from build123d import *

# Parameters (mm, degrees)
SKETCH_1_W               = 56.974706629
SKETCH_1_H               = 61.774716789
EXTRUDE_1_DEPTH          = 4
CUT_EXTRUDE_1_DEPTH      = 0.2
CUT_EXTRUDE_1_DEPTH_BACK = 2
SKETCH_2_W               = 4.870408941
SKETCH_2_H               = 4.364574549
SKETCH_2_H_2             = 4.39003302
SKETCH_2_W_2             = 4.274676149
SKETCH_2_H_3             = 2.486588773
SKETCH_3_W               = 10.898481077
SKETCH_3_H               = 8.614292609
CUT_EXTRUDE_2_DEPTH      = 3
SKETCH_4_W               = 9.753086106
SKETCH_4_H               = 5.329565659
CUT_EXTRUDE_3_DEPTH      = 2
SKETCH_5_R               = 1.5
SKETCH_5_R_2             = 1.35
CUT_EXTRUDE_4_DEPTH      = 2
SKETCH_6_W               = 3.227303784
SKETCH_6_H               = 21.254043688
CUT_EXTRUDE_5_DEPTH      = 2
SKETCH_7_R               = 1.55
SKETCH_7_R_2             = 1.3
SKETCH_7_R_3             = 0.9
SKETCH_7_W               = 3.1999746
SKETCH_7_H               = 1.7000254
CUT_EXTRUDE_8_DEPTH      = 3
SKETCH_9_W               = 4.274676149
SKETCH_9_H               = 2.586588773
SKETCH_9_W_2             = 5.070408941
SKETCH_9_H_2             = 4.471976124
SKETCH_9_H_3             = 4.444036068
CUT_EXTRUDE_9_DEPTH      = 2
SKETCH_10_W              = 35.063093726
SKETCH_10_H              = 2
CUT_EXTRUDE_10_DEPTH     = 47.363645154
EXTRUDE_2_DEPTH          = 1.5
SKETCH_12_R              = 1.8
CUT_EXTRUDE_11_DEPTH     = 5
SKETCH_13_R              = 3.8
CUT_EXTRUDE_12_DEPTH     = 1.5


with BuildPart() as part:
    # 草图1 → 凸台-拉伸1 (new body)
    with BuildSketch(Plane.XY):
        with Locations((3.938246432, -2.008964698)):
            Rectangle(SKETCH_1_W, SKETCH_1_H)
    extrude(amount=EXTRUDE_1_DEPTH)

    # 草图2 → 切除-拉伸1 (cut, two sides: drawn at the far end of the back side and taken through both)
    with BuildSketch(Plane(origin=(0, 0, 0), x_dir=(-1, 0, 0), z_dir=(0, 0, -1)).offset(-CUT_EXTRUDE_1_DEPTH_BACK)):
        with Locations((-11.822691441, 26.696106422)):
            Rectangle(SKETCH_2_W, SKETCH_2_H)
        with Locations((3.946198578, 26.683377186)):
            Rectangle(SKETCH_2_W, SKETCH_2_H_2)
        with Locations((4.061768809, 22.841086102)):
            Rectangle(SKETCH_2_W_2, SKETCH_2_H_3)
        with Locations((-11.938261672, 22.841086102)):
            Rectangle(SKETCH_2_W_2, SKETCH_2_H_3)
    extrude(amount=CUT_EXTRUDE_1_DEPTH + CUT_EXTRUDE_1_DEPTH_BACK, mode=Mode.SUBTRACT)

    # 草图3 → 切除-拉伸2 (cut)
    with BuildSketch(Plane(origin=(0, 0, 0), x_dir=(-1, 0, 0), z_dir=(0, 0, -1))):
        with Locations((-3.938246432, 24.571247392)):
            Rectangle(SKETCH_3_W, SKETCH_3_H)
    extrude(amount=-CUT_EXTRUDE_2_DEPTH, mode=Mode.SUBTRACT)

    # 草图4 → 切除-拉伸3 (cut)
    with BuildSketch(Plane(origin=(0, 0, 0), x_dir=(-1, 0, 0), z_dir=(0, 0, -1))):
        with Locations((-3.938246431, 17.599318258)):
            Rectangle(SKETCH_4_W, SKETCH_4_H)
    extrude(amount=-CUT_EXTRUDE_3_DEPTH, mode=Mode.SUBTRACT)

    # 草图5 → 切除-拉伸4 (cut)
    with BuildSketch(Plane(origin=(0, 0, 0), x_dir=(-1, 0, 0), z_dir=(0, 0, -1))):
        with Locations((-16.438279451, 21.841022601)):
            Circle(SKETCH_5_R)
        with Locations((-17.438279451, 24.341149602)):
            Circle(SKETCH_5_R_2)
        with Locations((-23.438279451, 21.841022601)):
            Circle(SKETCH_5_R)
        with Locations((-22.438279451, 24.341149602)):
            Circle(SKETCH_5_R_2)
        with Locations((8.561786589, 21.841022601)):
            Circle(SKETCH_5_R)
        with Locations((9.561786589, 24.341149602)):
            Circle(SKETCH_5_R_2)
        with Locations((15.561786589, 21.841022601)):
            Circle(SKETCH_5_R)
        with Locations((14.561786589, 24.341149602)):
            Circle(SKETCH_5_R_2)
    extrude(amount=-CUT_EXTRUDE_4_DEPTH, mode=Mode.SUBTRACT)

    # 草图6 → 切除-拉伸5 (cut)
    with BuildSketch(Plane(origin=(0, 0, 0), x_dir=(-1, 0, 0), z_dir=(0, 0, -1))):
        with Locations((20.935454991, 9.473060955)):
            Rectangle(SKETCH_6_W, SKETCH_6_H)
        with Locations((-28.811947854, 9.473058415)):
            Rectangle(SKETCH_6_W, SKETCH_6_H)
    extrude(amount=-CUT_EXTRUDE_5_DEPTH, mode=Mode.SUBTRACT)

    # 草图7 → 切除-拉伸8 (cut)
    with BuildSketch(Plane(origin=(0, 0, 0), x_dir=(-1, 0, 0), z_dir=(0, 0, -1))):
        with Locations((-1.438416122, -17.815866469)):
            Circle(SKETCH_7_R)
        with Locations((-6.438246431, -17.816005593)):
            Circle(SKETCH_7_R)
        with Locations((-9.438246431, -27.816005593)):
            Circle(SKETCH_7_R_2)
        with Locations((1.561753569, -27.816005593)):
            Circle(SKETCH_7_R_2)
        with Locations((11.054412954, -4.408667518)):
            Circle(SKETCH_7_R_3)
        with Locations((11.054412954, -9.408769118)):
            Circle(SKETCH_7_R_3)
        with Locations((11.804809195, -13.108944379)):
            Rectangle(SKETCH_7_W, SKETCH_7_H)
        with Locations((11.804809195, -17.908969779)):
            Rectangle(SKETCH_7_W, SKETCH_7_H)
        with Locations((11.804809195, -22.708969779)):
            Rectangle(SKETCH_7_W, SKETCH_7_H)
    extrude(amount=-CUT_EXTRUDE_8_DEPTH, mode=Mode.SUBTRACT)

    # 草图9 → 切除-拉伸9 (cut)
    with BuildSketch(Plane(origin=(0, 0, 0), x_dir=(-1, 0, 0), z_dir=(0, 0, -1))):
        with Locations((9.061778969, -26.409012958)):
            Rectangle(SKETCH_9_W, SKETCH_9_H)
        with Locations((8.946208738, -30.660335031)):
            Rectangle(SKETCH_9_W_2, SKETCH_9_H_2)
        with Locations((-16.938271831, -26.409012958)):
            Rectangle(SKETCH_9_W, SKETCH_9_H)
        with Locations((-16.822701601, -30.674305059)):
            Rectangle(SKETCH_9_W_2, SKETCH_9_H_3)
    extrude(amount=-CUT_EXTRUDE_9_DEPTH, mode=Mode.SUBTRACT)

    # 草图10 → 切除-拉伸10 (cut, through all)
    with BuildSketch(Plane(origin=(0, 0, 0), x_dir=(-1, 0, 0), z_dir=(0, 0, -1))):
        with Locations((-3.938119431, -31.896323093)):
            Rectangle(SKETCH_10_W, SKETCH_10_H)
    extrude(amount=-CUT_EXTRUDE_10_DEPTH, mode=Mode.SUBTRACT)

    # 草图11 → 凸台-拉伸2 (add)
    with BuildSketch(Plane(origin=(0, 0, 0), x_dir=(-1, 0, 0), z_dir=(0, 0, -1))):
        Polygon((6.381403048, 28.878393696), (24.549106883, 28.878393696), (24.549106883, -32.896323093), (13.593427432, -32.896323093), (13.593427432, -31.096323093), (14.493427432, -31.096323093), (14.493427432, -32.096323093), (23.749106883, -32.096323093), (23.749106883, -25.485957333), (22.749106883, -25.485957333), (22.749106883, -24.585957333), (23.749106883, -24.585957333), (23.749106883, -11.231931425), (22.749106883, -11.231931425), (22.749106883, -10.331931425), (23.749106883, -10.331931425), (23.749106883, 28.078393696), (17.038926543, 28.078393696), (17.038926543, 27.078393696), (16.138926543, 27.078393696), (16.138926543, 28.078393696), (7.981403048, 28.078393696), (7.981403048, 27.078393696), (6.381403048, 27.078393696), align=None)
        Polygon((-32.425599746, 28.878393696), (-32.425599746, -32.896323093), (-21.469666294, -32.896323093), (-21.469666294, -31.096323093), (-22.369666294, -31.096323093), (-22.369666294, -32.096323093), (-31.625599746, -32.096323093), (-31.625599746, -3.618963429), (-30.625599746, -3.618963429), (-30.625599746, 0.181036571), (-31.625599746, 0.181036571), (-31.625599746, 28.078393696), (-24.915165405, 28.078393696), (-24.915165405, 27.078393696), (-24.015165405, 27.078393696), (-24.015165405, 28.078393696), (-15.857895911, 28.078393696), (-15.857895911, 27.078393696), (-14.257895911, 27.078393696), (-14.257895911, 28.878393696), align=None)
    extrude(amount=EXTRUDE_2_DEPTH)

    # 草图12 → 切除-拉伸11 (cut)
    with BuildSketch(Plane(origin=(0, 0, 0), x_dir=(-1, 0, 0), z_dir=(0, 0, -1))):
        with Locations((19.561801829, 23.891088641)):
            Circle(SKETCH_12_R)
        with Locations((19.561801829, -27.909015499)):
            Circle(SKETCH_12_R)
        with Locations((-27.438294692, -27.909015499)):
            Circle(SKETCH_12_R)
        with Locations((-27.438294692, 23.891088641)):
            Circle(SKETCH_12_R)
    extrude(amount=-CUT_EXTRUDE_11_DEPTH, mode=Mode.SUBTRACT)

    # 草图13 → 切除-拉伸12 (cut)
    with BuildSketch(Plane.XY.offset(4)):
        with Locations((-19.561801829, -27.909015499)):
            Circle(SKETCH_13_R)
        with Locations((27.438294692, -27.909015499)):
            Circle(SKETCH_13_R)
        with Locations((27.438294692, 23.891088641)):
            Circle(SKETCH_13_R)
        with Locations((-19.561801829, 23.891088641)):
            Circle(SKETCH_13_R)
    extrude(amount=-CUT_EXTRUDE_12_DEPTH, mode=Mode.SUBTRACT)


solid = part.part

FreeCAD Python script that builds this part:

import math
import FreeCAD as App
import Part
import Sketcher
Q = App.Units.Quantity


def add_polygon(sketch, points):
    """Adds a closed chain of lines whose ends are joined by coincident constraints."""
    first, n = sketch.GeometryCount, len(points)
    for a, b in zip(points, points[1:] + points[:1]):
        sketch.addGeometry(Part.LineSegment(App.Vector(*a, 0), App.Vector(*b, 0)), False)
    for i in range(n):
        sketch.addConstraint(Sketcher.Constraint("Coincident", first + i, 2, first + (i + 1) % n, 1))

doc = App.newDocument("Part")
params = doc.addObject("Spreadsheet::Sheet", "Params")
for row, (alias, value) in enumerate([
    ("pad1_length", "4 mm"),
    ("pocket1_length", "0.2 mm"),
    ("pocket1_length2", "2 mm"),
    ("pocket2_length", "3 mm"),
    ("pocket3_length", "2 mm"),
    ("sketch5_radius", "1.5 mm"),
    ("sketch5_radius2", "1.5 mm"),
    ("sketch5_radius3", "1.5 mm"),
    ("sketch5_radius4", "1.5 mm"),
    ("sketch5_radius5", "1.35 mm"),
    ("pocket4_length", "2 mm"),
    ("pocket5_length", "2 mm"),
    ("sketch7_diameter", "3.1 mm"),
    ("sketch7_diameter2", "2.6 mm"),
    ("sketch7_diameter3", "1.8 mm"),
    ("pocket6_length", "3 mm"),
    ("pocket7_length", "2 mm"),
    ("sketch9_height", "2 mm"),
    ("sketch10_width", "1 mm"),
    ("sketch10_width2", "1.6 mm"),
    ("sketch10_width3", "0.9 mm"),
    ("sketch10_height", "1.8 mm"),
    ("sketch10_height2", "3.8 mm"),
    ("pad2_length", "1.5 mm"),
    ("sketch11_diameter", "3.6 mm"),
    ("pocket9_length", "5 mm"),
    ("sketch12_diameter", "7.6 mm"),
    ("pocket10_length", "1.5 mm"),
], start=1):
    params.set(f"A{row}", alias)
    params.set(f"B{row}", "=" + value)
    params.setAlias(f"B{row}", alias)

body = doc.addObject("PartDesign::Body", "Body")

# Sketch on XY plane
sketch1 = body.newObject("Sketcher::SketchObject", "Sketch")
sketch1.AttachmentSupport = (doc.getObject("XY_Plane"), [""])
sketch1.MapMode = "FlatFace"
add_polygon(sketch1, [(-25, 29), (-25, -33), (32, -33), (32, 29)])  # lines 0-3
sketch1.addConstraint(Sketcher.Constraint("Vertical", 0))
sketch1.addConstraint(Sketcher.Constraint("Horizontal", 1))
sketch1.addConstraint(Sketcher.Constraint("Vertical", 2))
sketch1.addConstraint(Sketcher.Constraint("Horizontal", 3))
sketch1.addConstraint(Sketcher.Constraint("DistanceX", -1, 1, 1, 2, Q("32.4256 mm")))
sketch1.addConstraint(Sketcher.Constraint("DistanceX", 1, 1, 1, 2, Q("56.974707 mm")))
sketch1.addConstraint(Sketcher.Constraint("DistanceY", 0, 2, 0, 1, Q("61.774717 mm")))
sketch1.addConstraint(Sketcher.Constraint("DistanceY", 0, 2, -1, 1, Q("32.896323 mm")))
pad1 = body.newObject("PartDesign::Pad", "Pad")
pad1.Profile = sketch1
pad1.setExpression("Length", "Params.pad1_length")

# Sketch on XY plane
sketch2 = body.newObject("Sketcher::SketchObject", "Sketch001")
sketch2.AttachmentSupport = (doc.getObject("XY_Plane"), [""])
sketch2.MapMode = "FlatFace"
add_polygon(sketch2, [(14.3, 28.9), (14.3, 24.5), (9.4, 24.5), (9.4, 28.9)])  # lines 0-3
add_polygon(sketch2, [(-1.5, 28.9), (-1.5, 24.5), (-6.4, 24.5), (-6.4, 28.9)])  # lines 4-7
add_polygon(sketch2, [(-1.9, 24.1), (-1.9, 21.6), (-6.2, 21.6), (-6.2, 24.1)])  # lines 8-11
add_polygon(sketch2, [(14.1, 24.1), (14.1, 21.6), (9.8, 21.6), (9.8, 24.1)])  # lines 12-15
sketch2.addConstraint(Sketcher.Constraint("Vertical", 0))
sketch2.addConstraint(Sketcher.Constraint("Horizontal", 1))
sketch2.addConstraint(Sketcher.Constraint("Vertical", 2))
sketch2.addConstraint(Sketcher.Constraint("Horizontal", 3))
sketch2.addConstraint(Sketcher.Constraint("Vertical", 4))
sketch2.addConstraint(Sketcher.Constraint("Horizontal", 5))
sketch2.addConstraint(Sketcher.Constraint("Vertical", 6))
sketch2.addConstraint(Sketcher.Constraint("Horizontal", 7))
sketch2.addConstraint(Sketcher.Constraint("Vertical", 8))
sketch2.addConstraint(Sketcher.Constraint("Horizontal", 9))
sketch2.addConstraint(Sketcher.Constraint("Vertical", 10))
sketch2.addConstraint(Sketcher.Constraint("Horizontal", 11))
sketch2.addConstraint(Sketcher.Constraint("Vertical", 12))
sketch2.addConstraint(Sketcher.Constraint("Horizontal", 13))
sketch2.addConstraint(Sketcher.Constraint("Vertical", 14))
sketch2.addConstraint(Sketcher.Constraint("Horizontal", 15))
sketch2.addConstraint(Sketcher.Constraint("Horizontal", 3, 2, 6, 2))
sketch2.addConstraint(Sketcher.Constraint("Horizontal", 9, 2, 12, 2))
sketch2.addConstraint(Sketcher.Constraint("Horizontal", 11, 2, 14, 2))
sketch2.addConstraint(Sketcher.Constraint("Equal", 3, 5))
sketch2.addConstraint(Sketcher.Constraint("Equal", 11, 13))
sketch2.addConstraint(Sketcher.Constraint("DistanceX", 1, 2, 1, 1, Q("4.870409 mm")))
sketch2.addConstraint(Sketcher.Constraint("DistanceY", 8, 2, 8, 1, Q("2.486589 mm")))
sketch2.addConstraint(Sketcher.Constraint("DistanceX", -1, 1, 12, 2, Q("14.0756 mm")))
sketch2.addConstraint(Sketcher.Constraint("DistanceX", 5, 2, 0, 2, Q("20.639299 mm")))
sketch2.addConstraint(Sketcher.Constraint("DistanceY", 8, 2, 7, 2, Q("7.280602 mm")))
sketch2.addConstraint(Sketcher.Constraint("DistanceX", 9, 2, 9, 1, Q("4.274676 mm")))
sketch2.addConstraint(Sketcher.Constraint("DistanceY", 0, 2, 0, 1, Q("4.364575 mm")))
sketch2.addConstraint(Sketcher.Constraint("DistanceY", 4, 2, 4, 1, Q("4.390033 mm")))
sketch2.addConstraint(Sketcher.Constraint("DistanceY", -1, 1, 0, 2, Q("24.513819 mm")))
sketch2.addConstraint(Sketcher.Constraint("DistanceX", 8, 2, -1, 1, Q("1.924431 mm")))
sketch2.addConstraint(Sketcher.Constraint("DistanceX", -1, 1, 0, 2, Q("14.257896 mm")))
pocket1 = body.newObject("PartDesign::Pocket", "Pocket")
pocket1.Profile = sketch2
pocket1.Type = "TwoLengths"
pocket1.setExpression("Length", "Params.pocket1_length")
pocket1.setExpression("Length2", "Params.pocket1_length2")

# Sketch on XY plane
sketch3 = body.newObject("Sketcher::SketchObject", "Sketch002")
sketch3.AttachmentSupport = (doc.getObject("XY_Plane"), [""])
sketch3.MapMode = "FlatFace"
add_polygon(sketch3, [(9, 29), (9, 20), (-2, 20), (-2, 29)])  # lines 0-3
sketch3.addConstraint(Sketcher.Constraint("Vertical", 0))
sketch3.addConstraint(Sketcher.Constraint("Horizontal", 1))
sketch3.addConstraint(Sketcher.Constraint("Vertical", 2))
sketch3.addConstraint(Sketcher.Constraint("Horizontal", 3))
sketch3.addConstraint(Sketcher.Constraint("DistanceX", 1, 2, 1, 1, Q("10.898481 mm")))
sketch3.addConstraint(Sketcher.Constraint("DistanceY", -1, 1, 0, 2, Q("20.264101 mm")))
sketch3.addConstraint(Sketcher.Constraint("DistanceY", 0, 2, 0, 1, Q("8.614293 mm")))
sketch3.addConstraint(Sketcher.Constraint("DistanceX", -1, 1, 0, 2, Q("9.387487 mm")))
pocket2 = body.newObject("PartDesign::Pocket", "Pocket001")
pocket2.Profile = sketch3
pocket2.setExpression("Length", "Params.pocket2_length")
pocket2.Reversed = True

# Sketch on XY plane
sketch4 = body.newObject("Sketcher::SketchObject", "Sketch003")
sketch4.AttachmentSupport = (doc.getObject("XY_Plane"), [""])
sketch4.MapMode = "FlatFace"
add_polygon(sketch4, [(9, 20), (9, 15), (-1, 15), (-1, 20)])  # lines 0-3
sketch4.addConstraint(Sketcher.Constraint("Vertical", 0))
sketch4.addConstraint(Sketcher.Constraint("Horizontal", 1))
sketch4.addConstraint(Sketcher.Constraint("Vertical", 2))
sketch4.addConstraint(Sketcher.Constraint("Horizontal", 3))
sketch4.addConstraint(Sketcher.Constraint("DistanceY", -1, 1, 2, 2, Q("20.264101 mm")))
sketch4.addConstraint(Sketcher.Constraint("DistanceX", 1, 2, 1, 1, Q("9.753086 mm")))
sketch4.addConstraint(Sketcher.Constraint("DistanceY", 0, 2, 0, 1, Q("5.329566 mm")))
sketch4.addConstraint(Sketcher.Constraint("DistanceX", -1, 1, 0, 2, Q("8.814789 mm")))
pocket3 = body.newObject("PartDesign::Pocket", "Pocket002")
pocket3.Profile = sketch4
pocket3.setExpression("Length", "Params.pocket3_length")
pocket3.Reversed = True

# Sketch on XY plane
sketch5 = body.newObject("Sketcher::SketchObject", "Sketch004")
sketch5.AttachmentSupport = (doc.getObject("XY_Plane"), [""])
sketch5.MapMode = "FlatFace"
sketch5.addGeometry(Part.ArcOfCircle(Part.Circle(App.Vector(17.438279, 24.34115, 0), App.Vector(0, 0, 1), 1.35), math.radians(-91.600811), math.radians(228)), False)
sketch5.addGeometry(Part.ArcOfCircle(Part.Circle(App.Vector(16.438279, 21.841023, 0), App.Vector(0, 0, 1), 1.5), math.radians(86.304776), math.radians(410.094412)), False)
sketch5.addGeometry(Part.ArcOfCircle(Part.Circle(App.Vector(22.438279, 24.34115, 0), App.Vector(0, 0, 1), 1.35), math.radians(-48), math.radians(271.600811)), False)
sketch5.addGeometry(Part.ArcOfCircle(Part.Circle(App.Vector(23.438279, 21.841023, 0), App.Vector(0, 0, 1), 1.5), math.radians(129.905588), math.radians(453.695224)), False)
sketch5.addGeometry(Part.ArcOfCircle(Part.Circle(App.Vector(-9.561787, 24.34115, 0), App.Vector(0, 0, 1), 1.35), math.radians(-48), math.radians(271.600811)), False)
sketch5.addGeometry(Part.ArcOfCircle(Part.Circle(App.Vector(-8.561787, 21.841023, 0), App.Vector(0, 0, 1), 1.5), math.radians(129.905588), math.radians(453.695224)), False)
sketch5.addGeometry(Part.ArcOfCircle(Part.Circle(App.Vector(-14.561787, 24.34115, 0), App.Vector(0, 0, 1), 1.35), math.radians(-91.600811), math.radians(228)), False)
sketch5.addGeometry(Part.ArcOfCircle(Part.Circle(App.Vector(-15.561787, 21.841023, 0), App.Vector(0, 0, 1), 1.5), math.radians(86.304776), math.radians(410.094412)), False)
sketch5.addConstraint(Sketcher.Constraint("Coincident", 0, 1, 1, 2))
sketch5.addConstraint(Sketcher.Constraint("Coincident", 1, 1, 0, 2))
sketch5.addConstraint(Sketcher.Constraint("Coincident", 2, 1, 3, 2))
sketch5.addConstraint(Sketcher.Constraint("Coincident", 3, 1, 2, 2))
sketch5.addConstraint(Sketcher.Constraint("Coincident", 4, 1, 5, 2))
sketch5.addConstraint(Sketcher.Constraint("Coincident", 5, 1, 4, 2))
sketch5.addConstraint(Sketcher.Constraint("Coincident", 6, 1, 7, 2))
sketch5.addConstraint(Sketcher.Constraint("Coincident", 7, 1, 6, 2))
sketch5.addConstraint(Sketcher.Constraint("Radius", 1, Q("1.5 mm")))
sketch5.addConstraint(Sketcher.Constraint("Radius", 3, Q("1.5 mm")))
sketch5.addConstraint(Sketcher.Constraint("Radius", 5, Q("1.5 mm")))
sketch5.addConstraint(Sketcher.Constraint("Radius", 7, Q("1.5 mm")))
sketch5.addConstraint(Sketcher.Constraint("Radius", 0, Q("1.35 mm")))
sketch5.addConstraint(Sketcher.Constraint("Radius", 2, Q("1.35 mm")))
sketch5.addConstraint(Sketcher.Constraint("Radius", 4, Q("1.35 mm")))
sketch5.addConstraint(Sketcher.Constraint("Radius", 6, Q("1.35 mm")))
sketch5.addConstraint(Sketcher.Constraint("DistanceX", 1, 3, 0, 3, Q("1 mm")))
sketch5.addConstraint(Sketcher.Constraint("DistanceX", 0, 3, 2, 3, Q("5 mm")))
sketch5.addConstraint(Sketcher.Constraint("DistanceX", 2, 3, 3, 3, Q("1 mm")))
sketch5.addConstraint(Sketcher.Constraint("DistanceX", 4, 3, 5, 3, Q("1 mm")))
sketch5.addConstraint(Sketcher.Constraint("DistanceX", 6, 3, 4, 3, Q("5 mm")))
sketch5.addConstraint(Sketcher.Constraint("DistanceX", 7, 3, 6, 3, Q("1 mm")))
sketch5.addConstraint(Sketcher.Constraint("DistanceX", 6, 1, -1, 1, Q("14.5995 mm")))
sketch5.addConstraint(Sketcher.Constraint("DistanceX", -1, 1, 0, 3, Q("17.438279 mm")))
sketch5.addConstraint(Sketcher.Constraint("DistanceY", -1, 1, 0, 3, Q("24.34115 mm")))
sketch5.addConstraint(Sketcher.Constraint("DistanceY", -1, 1, 2, 3, Q("24.34115 mm")))
sketch5.addConstraint(Sketcher.Constraint("DistanceY", -1, 1, 4, 3, Q("24.34115 mm")))
sketch5.addConstraint(Sketcher.Constraint("DistanceY", -1, 1, 6, 3, Q("24.34115 mm")))
sketch5.addConstraint(Sketcher.Constraint("DistanceX", 4, 1, -1, 1, Q("8.65846 mm")))
sketch5.addConstraint(Sketcher.Constraint("DistanceY", 1, 3, 1, 1, Q("1.496881 mm")))
sketch5.addConstraint(Sketcher.Constraint("DistanceY", 3, 3, 1, 1, Q("1.496881 mm")))
sketch5.addConstraint(Sketcher.Constraint("DistanceY", 5, 3, 4, 1, Q("1.496881 mm")))
sketch5.setExpression("Constraints[8]", "Params.sketch5_radius")
sketch5.setExpression("Constraints[9]", "Params.sketch5_radius2")
sketch5.setExpression("Constraints[10]", "Params.sketch5_radius3")
sketch5.setExpression("Constraints[11]", "Params.sketch5_radius4")
sketch5.setExpression("Constraints[12]", "Params.sketch5_radius5")
pocket4 = body.newObject("PartDesign::Pocket", "Pocket003")
pocket4.Profile = sketch5
pocket4.setExpression("Length", "Params.pocket4_length")
pocket4.Reversed = True

# Sketch on XY plane
sketch6 = body.newObject("Sketcher::SketchObject", "Sketch005")
sketch6.AttachmentSupport = (doc.getObject("XY_Plane"), [""])
sketch6.MapMode = "FlatFace"
add_polygon(sketch6, [(-19.3, 20.1), (-19.3, -1.2), (-22.5, -1.2), (-22.5, 20.1)])  # lines 0-3
add_polygon(sketch6, [(30.4, 20.1), (30.4, -1.2), (27.2, -1.2), (27.2, 20.1)])  # lines 4-7
sketch6.addConstraint(Sketcher.Constraint("Vertical", 0))
sketch6.addConstraint(Sketcher.Constraint("Horizontal", 1))
sketch6.addConstraint(Sketcher.Constraint("Vertical", 2))
sketch6.addConstraint(Sketcher.Constraint("Horizontal", 3))
sketch6.addConstraint(Sketcher.Constraint("Vertical", 4))
sketch6.addConstraint(Sketcher.Constraint("Horizontal", 5))
sketch6.addConstraint(Sketcher.Constraint("Vertical", 6))
sketch6.addConstraint(Sketcher.Constraint("Horizontal", 7))
sketch6.addConstraint(Sketcher.Constraint("Equal", 3, 5))
sketch6.addConstraint(Sketcher.Constraint("Equal", 2, 4))
sketch6.addConstraint(Sketcher.Constraint("DistanceX", -1, 1, 4, 2, Q("30.4256 mm")))
sketch6.addConstraint(Sketcher.Constraint("DistanceX", 0, 2, 5, 2, Q("46.520099 mm")))
sketch6.addConstraint(Sketcher.Constraint("DistanceX", 1, 2, 1, 1, Q("3.227304 mm")))
sketch6.addConstraint(Sketcher.Constraint("DistanceY", 0, 2, 0, 1, Q("21.254044 mm")))
sketch6.addConstraint(Sketcher.Constraint("DistanceY", 0, 2, -1, 1, Q("1.153961 mm")))
sketch6.addConstraint(Sketcher.Constraint("DistanceY", -1, 1, 6, 2, Q("20.10008 mm")))
pocket5 = body.newObject("PartDesign::Pocket", "Pocket004")
pocket5.Profile = sketch6
pocket5.setExpression("Length", "Params.pocket5_length")
pocket5.Reversed = True

# Sketch on XY plane
sketch7 = body.newObject("Sketcher::SketchObject", "Sketch006")
sketch7.AttachmentSupport = (doc.getObject("XY_Plane"), [""])
sketch7.MapMode = "FlatFace"
sketch7.addGeometry(Part.Circle(App.Vector(1.4, -17.8, 0), App.Vector(0, 0, 1), 1.6), False)  # 0
sketch7.addGeometry(Part.Circle(App.Vector(6.4, -17.8, 0), App.Vector(0, 0, 1), 1.6), False)  # 1
sketch7.addGeometry(Part.Circle(App.Vector(9.4, -27.8, 0), App.Vector(0, 0, 1), 1.3), False)  # 2
sketch7.addGeometry(Part.Circle(App.Vector(-1.6, -27.8, 0), App.Vector(0, 0, 1), 1.3), False)  # 3
sketch7.addGeometry(Part.Circle(App.Vector(-11.1, -4.4, 0), App.Vector(0, 0, 1), 0.9), False)  # 4
sketch7.addGeometry(Part.Circle(App.Vector(-11.1, -9.4, 0), App.Vector(0, 0, 1), 0.9), False)  # 5
add_polygon(sketch7, [(-10.2, -12.3), (-10.2, -14), (-13.4, -14), (-13.4, -12.3)])  # lines 6-9
add_polygon(sketch7, [(-10.2, -17.1), (-10.2, -18.8), (-13.4, -18.8), (-13.4, -17.1)])  # lines 10-13
add_polygon(sketch7, [(-10.2, -21.9), (-10.2, -23.6), (-13.4, -23.6), (-13.4, -21.9)])  # lines 14-17
sketch7.addConstraint(Sketcher.Constraint("Vertical", 6))
sketch7.addConstraint(Sketcher.Constraint("Horizontal", 7))
sketch7.addConstraint(Sketcher.Constraint("Vertical", 8))
sketch7.addConstraint(Sketcher.Constraint("Horizontal", 9))
sketch7.addConstraint(Sketcher.Constraint("Vertical", 10))
sketch7.addConstraint(Sketcher.Constraint("Horizontal", 11))
sketch7.addConstraint(Sketcher.Constraint("Vertical", 12))
sketch7.addConstraint(Sketcher.Constraint("Horizontal", 13))
sketch7.addConstraint(Sketcher.Constraint("Vertical", 14))
sketch7.addConstraint(Sketcher.Constraint("Horizontal", 15))
sketch7.addConstraint(Sketcher.Constraint("Vertical", 16))
sketch7.addConstraint(Sketcher.Constraint("Horizontal", 17))
sketch7.addConstraint(Sketcher.Constraint("Equal", 0, 1))
sketch7.addConstraint(Sketcher.Constraint("Equal", 2, 3))
sketch7.addConstraint(Sketcher.Constraint("Equal", 4, 5))
sketch7.addConstraint(Sketcher.Constraint("Horizontal", 2, 3, 3, 3))
sketch7.addConstraint(Sketcher.Constraint("Vertical", 4, 3, 5, 3))
sketch7.addConstraint(Sketcher.Constraint("Vertical", 9, 2, 10, 2))
sketch7.addConstraint(Sketcher.Constraint("Vertical", 8, 2, 11, 2))
sketch7.addConstraint(Sketcher.Constraint("Vertical", 13, 2, 14, 2))
sketch7.addConstraint(Sketcher.Constraint("Vertical", 12, 2, 15, 2))
sketch7.addConstraint(Sketcher.Constraint("Equal", 8, 10))
sketch7.addConstraint(Sketcher.Constraint("Equal", 12, 14))
sketch7.addConstraint(Sketcher.Constraint("Diameter", 0, Q("3.1 mm")))
sketch7.addConstraint(Sketcher.Constraint("Diameter", 2, Q("2.6 mm")))
sketch7.addConstraint(Sketcher.Constraint("Diameter", 4, Q("1.8 mm")))
sketch7.addConstraint(Sketcher.Constraint("DistanceX", 1, 3, 2, 3, Q("3 mm")))
sketch7.addConstraint(Sketcher.Constraint("DistanceY", 2, 3, 1, 3, Q("10 mm")))
sketch7.addConstraint(Sketcher.Constraint("DistanceX", 3, 3, 2, 3, Q("11 mm")))
sketch7.addConstraint(Sketcher.Constraint("DistanceY", 12, 2, 7, 2, Q("3.1 mm")))
sketch7.addConstraint(Sketcher.Constraint("DistanceY", 14, 2, 10, 2, Q("4.8 mm")))
sketch7.addConstraint(Sketcher.Constraint("DistanceY", 0, 3, 4, 3, Q("13.407199 mm")))
sketch7.addConstraint(Sketcher.Constraint("DistanceY", 5, 3, 4, 3, Q("5.000102 mm")))
sketch7.addConstraint(Sketcher.Constraint("DistanceX", 7, 2, 7, 1, Q("3.199975 mm")))
sketch7.addConstraint(Sketcher.Constraint("DistanceY", 6, 2, 6, 1, Q("1.700025 mm")))
sketch7.addConstraint(Sketcher.Constraint("DistanceY", 5, 3, -1, 1, Q("9.408769 mm")))
sketch7.addConstraint(Sketcher.Constraint("DistanceX", 6, 2, -1, 1, Q("10.204822 mm")))
sketch7.addConstraint(Sketcher.Constraint("DistanceY", 8, 2, -1, 1, Q("12.258932 mm")))
sketch7.addConstraint(Sketcher.Constraint("DistanceX", 0, 3, 1, 3, Q("4.99983 mm")))
sketch7.addConstraint(Sketcher.Constraint("DistanceY", 1, 3, 0, 3, Q("0.000139 mm")))
sketch7.addConstraint(Sketcher.Constraint("DistanceX", 4, 3, 0, 3, Q("12.492829 mm")))
sketch7.addConstraint(Sketcher.Constraint("DistanceX", 5, 3, 6, 2, Q("0.849591 mm")))
sketch7.setExpression("Constraints[35]", "Params.sketch7_diameter")
sketch7.setExpression("Constraints[36]", "Params.sketch7_diameter2")
sketch7.setExpression("Constraints[37]", "Params.sketch7_diameter3")
pocket6 = body.newObject("PartDesign::Pocket", "Pocket005")
pocket6.Profile = sketch7
pocket6.setExpression("Length", "Params.pocket6_length")
pocket6.Reversed = True

# Sketch on XY plane
sketch8 = body.newObject("Sketcher::SketchObject", "Sketch007")
sketch8.AttachmentSupport = (doc.getObject("XY_Plane"), [""])
sketch8.MapMode = "FlatFace"
add_polygon(sketch8, [(-6.9, -25.1), (-6.9, -27.7), (-11.2, -27.7), (-11.2, -25.1)])  # lines 0-3
add_polygon(sketch8, [(-6.4, -28.4), (-6.4, -32.9), (-11.5, -32.9), (-11.5, -28.4)])  # lines 4-7
add_polygon(sketch8, [(19.1, -25.1), (19.1, -27.7), (14.8, -27.7), (14.8, -25.1)])  # lines 8-11
add_polygon(sketch8, [(19.4, -28.5), (19.4, -32.9), (14.3, -32.9), (14.3, -28.5)])  # lines 12-15
sketch8.addConstraint(Sketcher.Constraint("Vertical", 0))
sketch8.addConstraint(Sketcher.Constraint("Horizontal", 1))
sketch8.addConstraint(Sketcher.Constraint("Vertical", 2))
sketch8.addConstraint(Sketcher.Constraint("Horizontal", 3))
sketch8.addConstraint(Sketcher.Constraint("Vertical", 4))
sketch8.addConstraint(Sketcher.Constraint("Horizontal", 5))
sketch8.addConstraint(Sketcher.Constraint("Vertical", 6))
sketch8.addConstraint(Sketcher.Constraint("Horizontal", 7))
sketch8.addConstraint(Sketcher.Constraint("Vertical", 8))
sketch8.addConstraint(Sketcher.Constraint("Horizontal", 9))
sketch8.addConstraint(Sketcher.Constraint("Vertical", 10))
sketch8.addConstraint(Sketcher.Constraint("Horizontal", 11))
sketch8.addConstraint(Sketcher.Constraint("Vertical", 12))
sketch8.addConstraint(Sketcher.Constraint("Horizontal", 13))
sketch8.addConstraint(Sketcher.Constraint("Vertical", 14))
sketch8.addConstraint(Sketcher.Constraint("Horizontal", 15))
sketch8.addConstraint(Sketcher.Constraint("Horizontal", 1, 2, 8, 2))
sketch8.addConstraint(Sketcher.Constraint("Horizontal", 3, 2, 10, 2))
sketch8.addConstraint(Sketcher.Constraint("Horizontal", 5, 2, 12, 2))
sketch8.addConstraint(Sketcher.Constraint("Equal", 3, 9))
sketch8.addConstraint(Sketcher.Constraint("Equal", 7, 13))
sketch8.addConstraint(Sketcher.Constraint("DistanceX", 5, 2, 5, 1, Q("5.070409 mm")))
sketch8.addConstraint(Sketcher.Constraint("DistanceY", 0, 2, 0, 1, Q("2.586589 mm")))
sketch8.addConstraint(Sketcher.Constraint("DistanceX", 1, 2, 1, 1, Q("4.274676 mm")))
sketch8.addConstraint(Sketcher.Constraint("DistanceY", 4, 2, 4, 1, Q("4.471976 mm")))
sketch8.addConstraint(Sketcher.Constraint("DistanceY", 12, 2, 12, 1, Q("4.444036 mm")))
sketch8.addConstraint(Sketcher.Constraint("DistanceX", 0, 2, -1, 1, Q("6.924441 mm")))
sketch8.addConstraint(Sketcher.Constraint("DistanceY", 2, 2, -1, 1, Q("25.115719 mm")))
sketch8.addConstraint(Sketcher.Constraint("DistanceX", -1, 1, 8, 2, Q("19.07561 mm")))
sketch8.addConstraint(Sketcher.Constraint("DistanceY", 6, 2, 1, 2, Q("0.72204 mm")))
sketch8.addConstraint(Sketcher.Constraint("DistanceX", 7, 2, 9, 2, Q("21.211938 mm")))
sketch8.addConstraint(Sketcher.Constraint("DistanceX", 4, 2, 12, 2, Q("25.76891 mm")))
pocket7 = body.newObject("PartDesign::Pocket", "Pocket006")
pocket7.Profile = sketch8
pocket7.setExpression("Length", "Params.pocket7_length")
pocket7.Reversed = True

# Sketch on XY plane
sketch9 = body.newObject("Sketcher::SketchObject", "Sketch008")
sketch9.AttachmentSupport = (doc.getObject("XY_Plane"), [""])
sketch9.MapMode = "FlatFace"
add_polygon(sketch9, [(21.5, -30.9), (21.5, -32.9), (-13.6, -32.9), (-13.6, -30.9)])  # lines 0-3
sketch9.addConstraint(Sketcher.Constraint("Vertical", 0))
sketch9.addConstraint(Sketcher.Constraint("Horizontal", 1))
sketch9.addConstraint(Sketcher.Constraint("Vertical", 2))
sketch9.addConstraint(Sketcher.Constraint("Horizontal", 3))
sketch9.addConstraint(Sketcher.Constraint("DistanceY", 0, 2, 0, 1, Q("2 mm")))
sketch9.addConstraint(Sketcher.Constraint("DistanceX", 1, 2, 1, 1, Q("35.063094 mm")))
sketch9.addConstraint(Sketcher.Constraint("DistanceX", -1, 1, 0, 2, Q("21.469666 mm")))
sketch9.addConstraint(Sketcher.Constraint("DistanceY", 0, 2, -1, 1, Q("32.896323 mm")))
sketch9.setExpression("Constraints[8]", "Params.sketch9_height")
pocket8 = body.newObject("PartDesign::Pocket", "Pocket007")
pocket8.Profile = sketch9
pocket8.Type = "ThroughAll"
pocket8.Reversed = True

# Sketch on XY plane
sketch10 = body.newObject("Sketcher::SketchObject", "Sketch009")
sketch10.AttachmentSupport = (doc.getObject("XY_Plane"), [""])
sketch10.MapMode = "FlatFace"
add_polygon(sketch10, [(-24.5, 28.9), (-6.4, 28.9), (-6.4, 27.1), (-8, 27.1), (-8, 28.1), (-16.1, 28.1), (-16.1, 27.1), (-17, 27.1), (-17, 28.1), (-23.7, 28.1), (-23.7, -10.3), (-22.7, -10.3), (-22.7, -11.2), (-23.7, -11.2), (-23.7, -24.6), (-22.7, -24.6), (-22.7, -25.5), (-23.7, -25.5), (-23.7, -32.1), (-14.5, -32.1), (-14.5, -31.1), (-13.6, -31.1), (-13.6, -32.9), (-24.5, -32.9)])  # lines 0-23
add_polygon(sketch10, [(32.4, 28.9), (32.4, -32.9), (21.5, -32.9), (21.5, -31.1), (22.4, -31.1), (22.4, -32.1), (31.6, -32.1), (31.6, -3.6), (30.6, -3.6), (30.6, 0.2), (31.6, 0.2), (31.6, 28.1), (24.9, 28.1), (24.9, 27.1), (24, 27.1), (24, 28.1), (15.9, 28.1), (15.9, 27.1), (14.3, 27.1), (14.3, 28.9)])  # lines 24-43
sketch10.addConstraint(Sketcher.Constraint("Horizontal", 0))
sketch10.addConstraint(Sketcher.Constraint("Vertical", 1))
sketch10.addConstraint(Sketcher.Constraint("Horizontal", 2))
sketch10.addConstraint(Sketcher.Constraint("Vertical", 3))
sketch10.addConstraint(Sketcher.Constraint("Horizontal", 4))
sketch10.addConstraint(Sketcher.Constraint("Vertical", 5))
sketch10.addConstraint(Sketcher.Constraint("Horizontal", 6))
sketch10.addConstraint(Sketcher.Constraint("Vertical", 7))
sketch10.addConstraint(Sketcher.Constraint("Horizontal", 8))
sketch10.addConstraint(Sketcher.Constraint("Vertical", 9))
sketch10.addConstraint(Sketcher.Constraint("Horizontal", 10))
sketch10.addConstraint(Sketcher.Constraint("Vertical", 11))
sketch10.addConstraint(Sketcher.Constraint("Horizontal", 12))
sketch10.addConstraint(Sketcher.Constraint("Vertical", 13))
sketch10.addConstraint(Sketcher.Constraint("Horizontal", 14))
sketch10.addConstraint(Sketcher.Constraint("Vertical", 15))
sketch10.addConstraint(Sketcher.Constraint("Horizontal", 16))
sketch10.addConstraint(Sketcher.Constraint("Vertical", 17))
sketch10.addConstraint(Sketcher.Constraint("Horizontal", 18))
sketch10.addConstraint(Sketcher.Constraint("Vertical", 19))
sketch10.addConstraint(Sketcher.Constraint("Horizontal", 20))
sketch10.addConstraint(Sketcher.Constraint("Vertical", 21))
sketch10.addConstraint(Sketcher.Constraint("Horizontal", 22))
sketch10.addConstraint(Sketcher.Constraint("Vertical", 23))
sketch10.addConstraint(Sketcher.Constraint("Vertical", 24))
sketch10.addConstraint(Sketcher.Constraint("Horizontal", 25))
sketch10.addConstraint(Sketcher.Constraint("Vertical", 26))
sketch10.addConstraint(Sketcher.Constraint("Horizontal", 27))
sketch10.addConstraint(Sketcher.Constraint("Vertical", 28))
sketch10.addConstraint(Sketcher.Constraint("Horizontal", 29))
sketch10.addConstraint(Sketcher.Constraint("Vertical", 30))
sketch10.addConstraint(Sketcher.Constraint("Horizontal", 31))
sketch10.addConstraint(Sketcher.Constraint("Vertical", 32))
sketch10.addConstraint(Sketcher.Constraint("Horizontal", 33))
sketch10.addConstraint(Sketcher.Constraint("Vertical", 34))
sketch10.addConstraint(Sketcher.Constraint("Horizontal", 35))
sketch10.addConstraint(Sketcher.Constraint("Vertical", 36))
sketch10.addConstraint(Sketcher.Constraint("Horizontal", 37))
sketch10.addConstraint(Sketcher.Constraint("Vertical", 38))
sketch10.addConstraint(Sketcher.Constraint("Horizontal", 39))
sketch10.addConstraint(Sketcher.Constraint("Vertical", 40))
sketch10.addConstraint(Sketcher.Constraint("Horizontal", 41))
sketch10.addConstraint(Sketcher.Constraint("Vertical", 42))
sketch10.addConstraint(Sketcher.Constraint("Horizontal", 43))
sketch10.addConstraint(Sketcher.Constraint("Horizontal", 2, 2, 5, 2))
sketch10.addConstraint(Sketcher.Constraint("Horizontal", 4, 2, 7, 2))
sketch10.addConstraint(Sketcher.Constraint("Horizontal", 22, 2, 24, 2))
sketch10.addConstraint(Sketcher.Constraint("Horizontal", 20, 2, 26, 2))
sketch10.addConstraint(Sketcher.Constraint("Horizontal", 18, 2, 28, 2))
sketch10.addConstraint(Sketcher.Constraint("Horizontal", 8, 2, 34, 2))
sketch10.addConstraint(Sketcher.Constraint("Horizontal", 6, 2, 36, 2))
sketch10.addConstraint(Sketcher.Constraint("Horizontal", 35, 2, 38, 2))
sketch10.addConstraint(Sketcher.Constraint("Horizontal", 37, 2, 40, 2))
sketch10.addConstraint(Sketcher.Constraint("Horizontal", 23, 2, 42, 2))
sketch10.addConstraint(Sketcher.Constraint("Vertical", 9, 2, 12, 2))
sketch10.addConstraint(Sketcher.Constraint("Vertical", 11, 2, 14, 2))
sketch10.addConstraint(Sketcher.Constraint("Vertical", 13, 2, 16, 2))
sketch10.addConstraint(Sketcher.Constraint("Vertical", 30, 2, 33, 2))
sketch10.addConstraint(Sketcher.Constraint("Equal", 6, 20))
sketch10.addConstraint(Sketcher.Constraint("Equal", 20, 27))
sketch10.addConstraint(Sketcher.Constraint("Equal", 16, 31))
sketch10.addConstraint(Sketcher.Constraint("Equal", 27, 37))
sketch10.addConstraint(Sketcher.Constraint("Equal", 2, 41))
sketch10.addConstraint(Sketcher.Constraint("Equal", 0, 43))
sketch10.addConstraint(Sketcher.Constraint("Equal", 33, 3))
sketch10.addConstraint(Sketcher.Constraint("Equal", 37, 11))
sketch10.addConstraint(Sketcher.Constraint("Equal", 11, 15))
sketch10.addConstraint(Sketcher.Constraint("Equal", 7, 19))
sketch10.addConstraint(Sketcher.Constraint("Equal", 1, 21))
sketch10.addConstraint(Sketcher.Constraint("DistanceX", 10, 1, 10, 2, Q("1 mm")))
sketch10.addConstraint(Sketcher.Constraint("DistanceX", 2, 2, 2, 1, Q("1.6 mm")))
sketch10.addConstraint(Sketcher.Constraint("DistanceX", 6, 2, 6, 1, Q("0.9 mm")))
sketch10.addConstraint(Sketcher.Constraint("DistanceY", 1, 2, 1, 1, Q("1.8 mm")))
sketch10.addConstraint(Sketcher.Constraint("DistanceY", 32, 1, 32, 2, Q("3.8 mm")))
sketch10.addConstraint(Sketcher.Constraint("DistanceX", 22, 2, 17, 2, Q("0.8 mm")))
sketch10.addConstraint(Sketcher.Constraint("DistanceX", 29, 2, 24, 2, Q("0.8 mm")))
sketch10.addConstraint(Sketcher.Constraint("DistanceX", 8, 2, 8, 1, Q("6.71018 mm")))
sketch10.addConstraint(Sketcher.Constraint("DistanceX", 18, 1, 18, 2, Q("9.255679 mm")))
sketch10.addConstraint(Sketcher.Constraint("DistanceX", 39, 2, 39, 1, Q("8.157269 mm")))
sketch10.addConstraint(Sketcher.Constraint("DistanceY", 30, 1, 30, 2, Q("28.47736 mm")))
sketch10.addConstraint(Sketcher.Constraint("DistanceX", -1, 1, 24, 2, Q("32.4256 mm")))
sketch10.addConstraint(Sketcher.Constraint("DistanceX", 0, 1, 0, 2, Q("18.167704 mm")))
sketch10.addConstraint(Sketcher.Constraint("DistanceX", 25, 2, 25, 1, Q("10.955933 mm")))
sketch10.addConstraint(Sketcher.Constraint("DistanceY", 9, 2, 9, 1, Q("38.410325 mm")))
sketch10.addConstraint(Sketcher.Constraint("DistanceY", 13, 2, 13, 1, Q("13.354026 mm")))
sketch10.addConstraint(Sketcher.Constraint("DistanceY", 17, 2, 17, 1, Q("6.610366 mm")))
sketch10.addConstraint(Sketcher.Constraint("DistanceY", 9, 2, -1, 1, Q("10.331931 mm")))
sketch10.addConstraint(Sketcher.Constraint("DistanceX", 0, 2, 35, 2, Q("31.296568 mm")))
sketch10.setExpression("Constraints[113]", "Params.sketch10_width")
sketch10.setExpression("Constraints[114]", "Params.sketch10_width2")
sketch10.setExpression("Constraints[115]", "Params.sketch10_width3")
sketch10.setExpression("Constraints[116]", "Params.sketch10_height")
sketch10.setExpression("Constraints[117]", "Params.sketch10_height2")
pad2 = body.newObject("PartDesign::Pad", "Pad001")
pad2.Profile = sketch10
pad2.setExpression("Length", "Params.pad2_length")
pad2.Reversed = True

# Sketch on XY plane
sketch11 = body.newObject("Sketcher::SketchObject", "Sketch010")
sketch11.AttachmentSupport = (doc.getObject("XY_Plane"), [""])
sketch11.MapMode = "FlatFace"
sketch11.addGeometry(Part.Circle(App.Vector(-19.6, 23.9, 0), App.Vector(0, 0, 1), 1.8), False)
sketch11.addGeometry(Part.Circle(App.Vector(-19.6, -27.9, 0), App.Vector(0, 0, 1), 1.8), False)
sketch11.addGeometry(Part.Circle(App.Vector(27.4, -27.9, 0), App.Vector(0, 0, 1), 1.8), False)
sketch11.addGeometry(Part.Circle(App.Vector(27.4, 23.9, 0), App.Vector(0, 0, 1), 1.8), False)
sketch11.addConstraint(Sketcher.Constraint("Equal", 0, 1))
sketch11.addConstraint(Sketcher.Constraint("Equal", 1, 2))
sketch11.addConstraint(Sketcher.Constraint("Equal", 2, 3))
sketch11.addConstraint(Sketcher.Constraint("Horizontal", 1, 3, 2, 3))
sketch11.addConstraint(Sketcher.Constraint("Horizontal", 0, 3, 3, 3))
sketch11.addConstraint(Sketcher.Constraint("Vertical", 0, 3, 1, 3))
sketch11.addConstraint(Sketcher.Constraint("Vertical", 2, 3, 3, 3))
sketch11.addConstraint(Sketcher.Constraint("Diameter", 0, Q("3.6 mm")))
sketch11.addConstraint(Sketcher.Constraint("DistanceX", 0, 3, -1, 1, Q("19.561802 mm")))
sketch11.addConstraint(Sketcher.Constraint("DistanceY", -1, 1, 0, 3, Q("23.891089 mm")))
sketch11.addConstraint(Sketcher.Constraint("DistanceY", 1, 3, -1, 1, Q("27.909015 mm")))
sketch11.addConstraint(Sketcher.Constraint("DistanceX", -1, 1, 2, 3, Q("27.438295 mm")))
sketch11.setExpression("Constraints[7]", "Params.sketch11_diameter")
pocket9 = body.newObject("PartDesign::Pocket", "Pocket008")
pocket9.Profile = sketch11
pocket9.setExpression("Length", "Params.pocket9_length")
pocket9.Reversed = True

# Sketch on XY plane
sketch12 = body.newObject("Sketcher::SketchObject", "Sketch011")
sketch12.AttachmentSupport = (doc.getObject("XY_Plane"), [""])
sketch12.MapMode = "FlatFace"
sketch12.AttachmentOffset = App.Placement(App.Vector(0, 0, 4), App.Rotation())
sketch12.addGeometry(Part.Circle(App.Vector(-19.6, -27.9, 0), App.Vector(0, 0, 1), 3.8), False)
sketch12.addGeometry(Part.Circle(App.Vector(27.4, -27.9, 0), App.Vector(0, 0, 1), 3.8), False)
sketch12.addGeometry(Part.Circle(App.Vector(27.4, 23.9, 0), App.Vector(0, 0, 1), 3.8), False)
sketch12.addGeometry(Part.Circle(App.Vector(-19.6, 23.9, 0), App.Vector(0, 0, 1), 3.8), False)
sketch12.addConstraint(Sketcher.Constraint("Equal", 0, 1))
sketch12.addConstraint(Sketcher.Constraint("Equal", 1, 2))
sketch12.addConstraint(Sketcher.Constraint("Equal", 2, 3))
sketch12.addConstraint(Sketcher.Constraint("Horizontal", 0, 3, 1, 3))
sketch12.addConstraint(Sketcher.Constraint("Horizontal", 2, 3, 3, 3))
sketch12.addConstraint(Sketcher.Constraint("Vertical", 1, 3, 2, 3))
sketch12.addConstraint(Sketcher.Constraint("Vertical", 0, 3, 3, 3))
sketch12.addConstraint(Sketcher.Constraint("Diameter", 0, Q("7.6 mm")))
sketch12.addConstraint(Sketcher.Constraint("DistanceX", 0, 3, -1, 1, Q("19.561802 mm")))
sketch12.addConstraint(Sketcher.Constraint("DistanceY", -1, 1, 2, 3, Q("23.891089 mm")))
sketch12.addConstraint(Sketcher.Constraint("DistanceY", 0, 3, -1, 1, Q("27.909015 mm")))
sketch12.addConstraint(Sketcher.Constraint("DistanceX", -1, 1, 1, 3, Q("27.438295 mm")))
sketch12.setExpression("Constraints[7]", "Params.sketch12_diameter")
pocket10 = body.newObject("PartDesign::Pocket", "Pocket009")
pocket10.Profile = sketch12
pocket10.setExpression("Length", "Params.pocket10_length")

doc.recompute()
